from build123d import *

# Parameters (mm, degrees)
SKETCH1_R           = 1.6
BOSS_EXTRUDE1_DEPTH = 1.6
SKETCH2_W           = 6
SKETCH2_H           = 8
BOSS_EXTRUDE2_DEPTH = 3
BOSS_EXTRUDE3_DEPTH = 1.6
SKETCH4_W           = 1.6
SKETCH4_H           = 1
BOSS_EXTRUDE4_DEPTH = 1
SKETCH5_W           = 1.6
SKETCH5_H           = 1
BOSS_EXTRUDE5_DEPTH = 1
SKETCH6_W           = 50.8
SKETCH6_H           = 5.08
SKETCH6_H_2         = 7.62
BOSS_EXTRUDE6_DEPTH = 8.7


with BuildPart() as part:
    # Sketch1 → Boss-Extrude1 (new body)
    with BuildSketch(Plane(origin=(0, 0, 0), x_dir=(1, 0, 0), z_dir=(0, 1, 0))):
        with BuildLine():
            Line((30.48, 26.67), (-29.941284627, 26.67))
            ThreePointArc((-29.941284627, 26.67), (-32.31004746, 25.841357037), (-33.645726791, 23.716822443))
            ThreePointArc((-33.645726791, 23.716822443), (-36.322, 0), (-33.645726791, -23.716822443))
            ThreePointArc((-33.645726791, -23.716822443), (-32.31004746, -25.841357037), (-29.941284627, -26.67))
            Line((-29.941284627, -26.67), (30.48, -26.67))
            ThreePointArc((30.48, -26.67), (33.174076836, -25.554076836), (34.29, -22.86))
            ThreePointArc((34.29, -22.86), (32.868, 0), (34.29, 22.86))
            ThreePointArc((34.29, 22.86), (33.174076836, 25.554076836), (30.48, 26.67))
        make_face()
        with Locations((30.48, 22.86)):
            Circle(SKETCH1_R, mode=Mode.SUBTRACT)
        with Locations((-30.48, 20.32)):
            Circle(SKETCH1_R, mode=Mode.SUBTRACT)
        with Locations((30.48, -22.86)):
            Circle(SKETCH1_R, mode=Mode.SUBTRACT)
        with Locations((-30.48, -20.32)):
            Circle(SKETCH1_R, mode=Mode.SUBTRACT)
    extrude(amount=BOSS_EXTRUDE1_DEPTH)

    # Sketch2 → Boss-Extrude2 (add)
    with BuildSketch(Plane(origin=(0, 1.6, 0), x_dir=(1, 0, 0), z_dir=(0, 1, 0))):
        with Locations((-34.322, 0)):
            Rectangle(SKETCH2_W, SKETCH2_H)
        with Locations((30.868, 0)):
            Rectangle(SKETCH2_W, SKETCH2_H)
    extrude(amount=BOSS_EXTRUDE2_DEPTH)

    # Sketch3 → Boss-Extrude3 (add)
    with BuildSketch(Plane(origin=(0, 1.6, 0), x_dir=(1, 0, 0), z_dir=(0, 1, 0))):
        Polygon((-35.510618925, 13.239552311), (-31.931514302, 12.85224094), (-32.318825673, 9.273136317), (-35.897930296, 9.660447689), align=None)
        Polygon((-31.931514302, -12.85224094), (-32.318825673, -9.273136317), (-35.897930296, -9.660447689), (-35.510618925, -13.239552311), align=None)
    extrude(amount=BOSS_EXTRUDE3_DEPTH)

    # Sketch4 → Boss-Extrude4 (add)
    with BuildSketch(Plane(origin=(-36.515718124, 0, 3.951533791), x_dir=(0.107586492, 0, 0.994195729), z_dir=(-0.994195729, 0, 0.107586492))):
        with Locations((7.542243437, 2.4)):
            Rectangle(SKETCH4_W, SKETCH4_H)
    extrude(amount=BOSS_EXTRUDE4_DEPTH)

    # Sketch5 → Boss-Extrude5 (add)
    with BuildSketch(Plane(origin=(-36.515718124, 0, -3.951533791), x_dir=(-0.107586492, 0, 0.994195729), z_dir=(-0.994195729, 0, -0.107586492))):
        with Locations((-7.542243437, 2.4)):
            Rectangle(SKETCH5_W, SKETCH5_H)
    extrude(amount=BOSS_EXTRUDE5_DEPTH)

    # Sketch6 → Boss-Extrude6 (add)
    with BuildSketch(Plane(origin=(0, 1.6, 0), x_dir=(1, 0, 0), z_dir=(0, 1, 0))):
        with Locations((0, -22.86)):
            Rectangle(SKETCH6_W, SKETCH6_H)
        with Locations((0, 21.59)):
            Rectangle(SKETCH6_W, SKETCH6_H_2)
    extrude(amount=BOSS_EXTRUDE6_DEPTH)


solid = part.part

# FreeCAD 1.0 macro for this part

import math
import FreeCAD as App
import Part
import Sketcher

doc = App.newDocument("Part")
params = doc.addObject("Spreadsheet::Sheet", "Params")
for row, (alias, value) in enumerate([
    ("sketch1_diameter", "3.2 mm"),
    ("sketch1_radius", "3.8 mm"),
    ("sketch1_radius2", "3.81 mm"),
    ("pad1_length", "1.6 mm"),
    ("sketch2_width", "6 mm"),
    ("sketch2_height", "8 mm"),
    ("pad2_length", "3 mm"),
    ("sketch3_length", "3.6 mm"),
    ("pad3_length", "1.6 mm"),
    ("sketch4_height", "1 mm"),
    ("sketch4_width", "1.6 mm"),
    ("pad4_length", "1 mm"),
    ("sketch5_height", "1 mm"),
    ("sketch5_width", "1.6 mm"),
    ("pad5_length", "1 mm"),
    ("sketch6_width", "50.8 mm"),
    ("sketch6_height", "5.08 mm"),
    ("sketch6_height2", "7.62 mm"),
    ("pad6_length", "8.7 mm"),
], start=1):
    params.set(f"A{row}", alias)
    params.set(f"B{row}", "=" + value)
    params.setAlias(f"B{row}", alias)

body = doc.addObject("PartDesign::Body", "Body")

# Sketch on XZ plane
sketch1 = doc.addObject("Sketcher::SketchObject", "Sketch")
body.addObject(sketch1)
sketch1.AttachmentSupport = (doc.XZ_Plane, [""])
sketch1.MapMode = "FlatFace"
sketch1.addGeometry(Part.LineSegment(App.Vector(30.5, -26.7, 0), App.Vector(-29.9, -26.7, 0)), False)
sketch1.addGeometry(Part.ArcOfCircle(Part.Circle(App.Vector(-29.9, -22.9, 0), App.Vector(0, 0, 1), 3.8), math.radians(-167), math.radians(-90)), False)
sketch1.addGeometry(Part.ArcOfCircle(Part.Circle(App.Vector(70.1, 0, 0), App.Vector(0, 0, 1), 106.4), math.radians(167), math.radians(193)), False)
sketch1.addGeometry(Part.ArcOfCircle(Part.Circle(App.Vector(-29.9, 22.9, 0), App.Vector(0, 0, 1), 3.8), math.radians(90), math.radians(167)), False)
sketch1.addGeometry(Part.LineSegment(App.Vector(-29.9, 26.7, 0), App.Vector(30.5, 26.7, 0)), False)
sketch1.addGeometry(Part.ArcOfCircle(Part.Circle(App.Vector(30.5, 22.9, 0), App.Vector(0, 0, 1), 3.8), math.radians(0), math.radians(90)), False)
sketch1.addGeometry(Part.ArcOfCircle(Part.Circle(App.Vector(217.3, 0, 0), App.Vector(0, 0, 1), 184.5), math.radians(172.88), math.radians(187.12)), False)
sketch1.addGeometry(Part.ArcOfCircle(Part.Circle(App.Vector(30.5, -22.9, 0), App.Vector(0, 0, 1), 3.8), math.radians(-90), math.radians(0)), False)
sketch1.addGeometry(Part.Circle(App.Vector(-30.5, 20.3, 0), App.Vector(0, 0, 1), 1.6), False)
sketch1.addGeometry(Part.Circle(App.Vector(30.5, 22.9, 0), App.Vector(0, 0, 1), 1.6), False)
sketch1.addGeometry(Part.Circle(App.Vector(-30.5, -20.3, 0), App.Vector(0, 0, 1), 1.6), False)
sketch1.addGeometry(Part.Circle(App.Vector(30.5, -22.9, 0), App.Vector(0, 0, 1), 1.6), False)
sketch1.addConstraint(Sketcher.Constraint("Tangent", 0, 2, 1, 2))
sketch1.addConstraint(Sketcher.Constraint("Tangent", 1, 1, 2, 2))
sketch1.addConstraint(Sketcher.Constraint("Tangent", 2, 1, 3, 2))
sketch1.addConstraint(Sketcher.Constraint("Tangent", 3, 1, 4, 1))
sketch1.addConstraint(Sketcher.Constraint("Tangent", 4, 2, 5, 2))
sketch1.addConstraint(Sketcher.Constraint("Coincident", 5, 1, 6, 1))
sketch1.addConstraint(Sketcher.Constraint("Coincident", 6, 2, 7, 2))
sketch1.addConstraint(Sketcher.Constraint("Tangent", 7, 1, 0, 1))
sketch1.addConstraint(Sketcher.Constraint("Horizontal", 0))
sketch1.addConstraint(Sketcher.Constraint("Horizontal", 4))
sketch1.addConstraint(Sketcher.Constraint("Coincident", 9, 3, 5, 3))
sketch1.addConstraint(Sketcher.Constraint("Coincident", 11, 3, 7, 3))
sketch1.addConstraint(Sketcher.Constraint("Equal", 1, 3))
sketch1.addConstraint(Sketcher.Constraint("Equal", 5, 7))
sketch1.addConstraint(Sketcher.Constraint("Equal", 8, 9))
sketch1.addConstraint(Sketcher.Constraint("Equal", 9, 10))
sketch1.addConstraint(Sketcher.Constraint("Equal", 10, 11))
sketch1.addConstraint(Sketcher.Constraint("Symmetric", 1, 3, 3, 3, -1))
sketch1.addConstraint(Sketcher.Constraint("Symmetric", 8, 3, 10, 3, -1))
sketch1.addConstraint(Sketcher.Constraint("Symmetric", 5, 1, 6, 2, -1))
sketch1.addConstraint(Sketcher.Constraint("Horizontal", 9, 3, 5, 1))
sketch1.addConstraint(Sketcher.Constraint("Diameter", 8, 3.2))
sketch1.addConstraint(Sketcher.Constraint("Radius", 1, 3.8))
sketch1.addConstraint(Sketcher.Constraint("Radius", 5, 3.81))
sketch1.addConstraint(Sketcher.Constraint("Radius", 2, 106.426))
sketch1.addConstraint(Sketcher.Constraint("Radius", 6, 184.459101))
sketch1.addConstraint(Sketcher.Constraint("DistanceY", 1, 3, -1, 1, 22.87))
sketch1.addConstraint(Sketcher.Constraint("DistanceX", -1, 1, 5, 3, 30.48))
sketch1.addConstraint(Sketcher.Constraint("DistanceX", 8, 3, -1, 1, 30.48))
sketch1.addConstraint(Sketcher.Constraint("DistanceY", -1, 1, 8, 3, 20.32))
sketch1.addConstraint(Sketcher.Constraint("DistanceX", -1, 1, 2, 3, 70.104))
sketch1.setExpression("Constraints[21]", "Params.sketch1_diameter")
sketch1.setExpression("Constraints[22]", "Params.sketch1_radius")
sketch1.setExpression("Constraints[23]", "Params.sketch1_radius2")
pad1 = doc.addObject("PartDesign::Pad", "Pad")
body.addObject(pad1)
pad1.Profile = sketch1
pad1.setExpression("Length", "Params.pad1_length")
pad1.Reversed = True

# Sketch on XZ plane
sketch2 = doc.addObject("Sketcher::SketchObject", "Sketch001")
body.addObject(sketch2)
sketch2.AttachmentSupport = (doc.XZ_Plane, [""])
sketch2.MapMode = "FlatFace"
sketch2.AttachmentOffset = App.Placement(App.Vector(0, 0, -1.6), App.Rotation())
sketch2.addGeometry(Part.LineSegment(App.Vector(-37, -4, 0), App.Vector(-37, 4, 0)), False)
sketch2.addGeometry(Part.LineSegment(App.Vector(-37, 4, 0), App.Vector(-31, 4, 0)), False)
sketch2.addGeometry(Part.LineSegment(App.Vector(-31, 4, 0), App.Vector(-31, -4, 0)), False)
sketch2.addGeometry(Part.LineSegment(App.Vector(-31, -4, 0), App.Vector(-37, -4, 0)), False)
sketch2.addGeometry(Part.LineSegment(App.Vector(28, -4, 0), App.Vector(28, 4, 0)), False)
sketch2.addGeometry(Part.LineSegment(App.Vector(28, 4, 0), App.Vector(34, 4, 0)), False)
sketch2.addGeometry(Part.LineSegment(App.Vector(34, 4, 0), App.Vector(34, -4, 0)), False)
sketch2.addGeometry(Part.LineSegment(App.Vector(34, -4, 0), App.Vector(28, -4, 0)), False)
sketch2.addConstraint(Sketcher.Constraint("Coincident", 0, 2, 1, 1))
sketch2.addConstraint(Sketcher.Constraint("Coincident", 1, 2, 2, 1))
sketch2.addConstraint(Sketcher.Constraint("Coincident", 2, 2, 3, 1))
sketch2.addConstraint(Sketcher.Constraint("Coincident", 3, 2, 0, 1))
sketch2.addConstraint(Sketcher.Constraint("Coincident", 4, 2, 5, 1))
sketch2.addConstraint(Sketcher.Constraint("Coincident", 5, 2, 6, 1))
sketch2.addConstraint(Sketcher.Constraint("Coincident", 6, 2, 7, 1))
sketch2.addConstraint(Sketcher.Constraint("Coincident", 7, 2, 4, 1))
sketch2.addConstraint(Sketcher.Constraint("Vertical", 0))
sketch2.addConstraint(Sketcher.Constraint("Horizontal", 1))
sketch2.addConstraint(Sketcher.Constraint("Vertical", 2))
sketch2.addConstraint(Sketcher.Constraint("Horizontal", 3))
sketch2.addConstraint(Sketcher.Constraint("Vertical", 4))
sketch2.addConstraint(Sketcher.Constraint("Horizontal", 5))
sketch2.addConstraint(Sketcher.Constraint("Vertical", 6))
sketch2.addConstraint(Sketcher.Constraint("Horizontal", 7))
sketch2.addConstraint(Sketcher.Constraint("Horizontal", 1, 2, 4, 2))
sketch2.addConstraint(Sketcher.Constraint("Horizontal", 3, 2, 6, 2))
sketch2.addConstraint(Sketcher.Constraint("Equal", 3, 5))
sketch2.addConstraint(Sketcher.Constraint("DistanceX", 1, 1, 1, 2, 6.0))
sketch2.addConstraint(Sketcher.Constraint("DistanceY", 0, 1, 0, 2, 8.0))
sketch2.addConstraint(Sketcher.Constraint("DistanceY", -1, 1, 0, 2, 4.0))
sketch2.addConstraint(Sketcher.Constraint("DistanceX", 1, 2, 4, 2, 59.19))
sketch2.addConstraint(Sketcher.Constraint("DistanceX", 0, 2, -1, 1, 37.322))
sketch2.setExpression("Constraints[19]", "Params.sketch2_width")
sketch2.setExpression("Constraints[20]", "Params.sketch2_height")
pad2 = doc.addObject("PartDesign::Pad", "Pad001")
body.addObject(pad2)
pad2.Profile = sketch2
pad2.setExpression("Length", "Params.pad2_length")
pad2.Reversed = True

# Sketch on XZ plane
sketch3 = doc.addObject("Sketcher::SketchObject", "Sketch002")
body.addObject(sketch3)
sketch3.AttachmentSupport = (doc.XZ_Plane, [""])
sketch3.MapMode = "FlatFace"
sketch3.AttachmentOffset = App.Placement(App.Vector(0, 0, -1.6), App.Rotation())
sketch3.addGeometry(Part.LineSegment(App.Vector(-31.9, -12.9, 0), App.Vector(-35.5, -13.2, 0)), False)
sketch3.addGeometry(Part.LineSegment(App.Vector(-35.5, -13.2, 0), App.Vector(-35.9, -9.7, 0)), False)
sketch3.addGeometry(Part.LineSegment(App.Vector(-35.9, -9.7, 0), App.Vector(-32.3, -9.3, 0)), False)
sketch3.addGeometry(Part.LineSegment(App.Vector(-32.3, -9.3, 0), App.Vector(-31.9, -12.9, 0)), False)
sketch3.addGeometry(Part.LineSegment(App.Vector(-31.9, 12.9, 0), App.Vector(-32.3, 9.3, 0)), False)
sketch3.addGeometry(Part.LineSegment(App.Vector(-32.3, 9.3, 0), App.Vector(-35.9, 9.7, 0)), False)
sketch3.addGeometry(Part.LineSegment(App.Vector(-35.9, 9.7, 0), App.Vector(-35.5, 13.2, 0)), False)
sketch3.addGeometry(Part.LineSegment(App.Vector(-35.5, 13.2, 0), App.Vector(-31.9, 12.9, 0)), False)
sketch3.addConstraint(Sketcher.Constraint("Coincident", 0, 2, 1, 1))
sketch3.addConstraint(Sketcher.Constraint("Coincident", 1, 2, 2, 1))
sketch3.addConstraint(Sketcher.Constraint("Coincident", 2, 2, 3, 1))
sketch3.addConstraint(Sketcher.Constraint("Coincident", 3, 2, 0, 1))
sketch3.addConstraint(Sketcher.Constraint("Coincident", 4, 2, 5, 1))
sketch3.addConstraint(Sketcher.Constraint("Coincident", 5, 2, 6, 1))
sketch3.addConstraint(Sketcher.Constraint("Coincident", 6, 2, 7, 1))
sketch3.addConstraint(Sketcher.Constraint("Coincident", 7, 2, 4, 1))
sketch3.addConstraint(Sketcher.Constraint("Symmetric", 2, 2, 4, 2, -1))
sketch3.addConstraint(Sketcher.Constraint("Symmetric", 1, 2, 5, 2, -1))
sketch3.addConstraint(Sketcher.Constraint("Symmetric", 0, 2, 6, 2, -1))
sketch3.addConstraint(Sketcher.Constraint("Symmetric", 3, 2, 7, 2, -1))
sketch3.addConstraint(Sketcher.Constraint("Perpendicular", 0, 1))
sketch3.addConstraint(Sketcher.Constraint("Perpendicular", 1, 2))
sketch3.addConstraint(Sketcher.Constraint("Perpendicular", 2, 3))
sketch3.addConstraint(Sketcher.Constraint("Equal", 0, 1))
sketch3.addConstraint(Sketcher.Constraint("Distance", 0, 3.6))
sketch3.addConstraint(Sketcher.Constraint("DistanceY", 0, 2, 5, 2, 22.9))
sketch3.addConstraint(Sketcher.Constraint("DistanceX", 0, 2, -1, 1, 35.510619))
sketch3.addConstraint(Sketcher.Constraint("DistanceX", 1, 2, -1, 1, 35.89793))
sketch3.setExpression("Constraints[16]", "Params.sketch3_length")
pad3 = doc.addObject("PartDesign::Pad", "Pad002")
body.addObject(pad3)
pad3.Profile = sketch3
pad3.setExpression("Length", "Params.pad3_length")
pad3.Reversed = True

# Sketch on an angled plane
sketch4 = doc.addObject("Sketcher::SketchObject", "Sketch003")
body.addObject(sketch4)
sketch4.Placement = App.Placement(App.Vector(-36.515718, 0, 3.951534), App.Rotation(App.Vector(0.107586492, 0, 0.994195729), App.Vector(0, 1.000000001, 0), App.Vector(-0.994195729, 0, 0.107586492), "ZXY"))
sketch4.addGeometry(Part.LineSegment(App.Vector(6.7, 2.9, 0), App.Vector(6.7, 1.9, 0)), False)
sketch4.addGeometry(Part.LineSegment(App.Vector(6.7, 1.9, 0), App.Vector(8.3, 1.9, 0)), False)
sketch4.addGeometry(Part.LineSegment(App.Vector(8.3, 1.9, 0), App.Vector(8.3, 2.9, 0)), False)
sketch4.addGeometry(Part.LineSegment(App.Vector(8.3, 2.9, 0), App.Vector(6.7, 2.9, 0)), False)
sketch4.addConstraint(Sketcher.Constraint("Coincident", 0, 2, 1, 1))
sketch4.addConstraint(Sketcher.Constraint("Coincident", 1, 2, 2, 1))
sketch4.addConstraint(Sketcher.Constraint("Coincident", 2, 2, 3, 1))
sketch4.addConstraint(Sketcher.Constraint("Coincident", 3, 2, 0, 1))
sketch4.addConstraint(Sketcher.Constraint("Vertical", 0))
sketch4.addConstraint(Sketcher.Constraint("Horizontal", 1))
sketch4.addConstraint(Sketcher.Constraint("Vertical", 2))
sketch4.addConstraint(Sketcher.Constraint("Horizontal", 3))
sketch4.addConstraint(Sketcher.Constraint("DistanceY", 0, 2, 0, 1, 1.0))
sketch4.addConstraint(Sketcher.Constraint("DistanceX", 1, 1, 1, 2, 1.6))
sketch4.addConstraint(Sketcher.Constraint("DistanceY", -1, 1, 0, 2, 1.9))
sketch4.addConstraint(Sketcher.Constraint("DistanceX", -1, 1, 0, 2, 6.742243))
sketch4.setExpression("Constraints[8]", "Params.sketch4_height")
sketch4.setExpression("Constraints[9]", "Params.sketch4_width")
pad4 = doc.addObject("PartDesign::Pad", "Pad003")
body.addObject(pad4)
pad4.Profile = sketch4
pad4.setExpression("Length", "Params.pad4_length")

# Sketch on an angled plane
sketch5 = doc.addObject("Sketcher::SketchObject", "Sketch004")
body.addObject(sketch5)
sketch5.Placement = App.Placement(App.Vector(-36.515718, 0, -3.951534), App.Rotation(App.Vector(-0.107586492, 0, 0.994195729), App.Vector(0, 1.000000001, 0), App.Vector(-0.994195729, 0, -0.107586492), "ZXY"))
sketch5.addGeometry(Part.LineSegment(App.Vector(-8.3, 2.9, 0), App.Vector(-8.3, 1.9, 0)), False)
sketch5.addGeometry(Part.LineSegment(App.Vector(-8.3, 1.9, 0), App.Vector(-6.7, 1.9, 0)), False)
sketch5.addGeometry(Part.LineSegment(App.Vector(-6.7, 1.9, 0), App.Vector(-6.7, 2.9, 0)), False)
sketch5.addGeometry(Part.LineSegment(App.Vector(-6.7, 2.9, 0), App.Vector(-8.3, 2.9, 0)), False)
sketch5.addConstraint(Sketcher.Constraint("Coincident", 0, 2, 1, 1))
sketch5.addConstraint(Sketcher.Constraint("Coincident", 1, 2, 2, 1))
sketch5.addConstraint(Sketcher.Constraint("Coincident", 2, 2, 3, 1))
sketch5.addConstraint(Sketcher.Constraint("Coincident", 3, 2, 0, 1))
sketch5.addConstraint(Sketcher.Constraint("Vertical", 0))
sketch5.addConstraint(Sketcher.Constraint("Horizontal", 1))
sketch5.addConstraint(Sketcher.Constraint("Vertical", 2))
sketch5.addConstraint(Sketcher.Constraint("Horizontal", 3))
sketch5.addConstraint(Sketcher.Constraint("DistanceY", 0, 2, 0, 1, 1.0))
sketch5.addConstraint(Sketcher.Constraint("DistanceX", 1, 1, 1, 2, 1.6))
sketch5.addConstraint(Sketcher.Constraint("DistanceY", -1, 1, 0, 2, 1.9))
sketch5.addConstraint(Sketcher.Constraint("DistanceX", 0, 2, -1, 1, 8.342243))
sketch5.setExpression("Constraints[8]", "Params.sketch5_height")
sketch5.setExpression("Constraints[9]", "Params.sketch5_width")
pad5 = doc.addObject("PartDesign::Pad", "Pad004")
body.addObject(pad5)
pad5.Profile = sketch5
pad5.setExpression("Length", "Params.pad5_length")

# Sketch on XZ plane
sketch6 = doc.addObject("Sketcher::SketchObject", "Sketch005")
body.addObject(sketch6)
sketch6.AttachmentSupport = (doc.XZ_Plane, [""])
sketch6.MapMode = "FlatFace"
sketch6.AttachmentOffset = App.Placement(App.Vector(0, 0, -1.6), App.Rotation())
sketch6.addGeometry(Part.LineSegment(App.Vector(-25, 20, 0), App.Vector(-25, 25, 0)), False)
sketch6.addGeometry(Part.LineSegment(App.Vector(-25, 25, 0), App.Vector(25, 25, 0)), False)
sketch6.addGeometry(Part.LineSegment(App.Vector(25, 25, 0), App.Vector(25, 20, 0)), False)
sketch6.addGeometry(Part.LineSegment(App.Vector(25, 20, 0), App.Vector(-25, 20, 0)), False)
sketch6.addGeometry(Part.LineSegment(App.Vector(-25, -25, 0), App.Vector(-25, -18, 0)), False)
sketch6.addGeometry(Part.LineSegment(App.Vector(-25, -18, 0), App.Vector(25, -18, 0)), False)
sketch6.addGeometry(Part.LineSegment(App.Vector(25, -18, 0), App.Vector(25, -25, 0)), False)
sketch6.addGeometry(Part.LineSegment(App.Vector(25, -25, 0), App.Vector(-25, -25, 0)), False)
sketch6.addConstraint(Sketcher.Constraint("Coincident", 0, 2, 1, 1))
sketch6.addConstraint(Sketcher.Constraint("Coincident", 1, 2, 2, 1))
sketch6.addConstraint(Sketcher.Constraint("Coincident", 2, 2, 3, 1))
sketch6.addConstraint(Sketcher.Constraint("Coincident", 3, 2, 0, 1))
sketch6.addConstraint(Sketcher.Constraint("Coincident", 4, 2, 5, 1))
sketch6.addConstraint(Sketcher.Constraint("Coincident", 5, 2, 6, 1))
sketch6.addConstraint(Sketcher.Constraint("Coincident", 6, 2, 7, 1))
sketch6.addConstraint(Sketcher.Constraint("Coincident", 7, 2, 4, 1))
sketch6.addConstraint(Sketcher.Constraint("Vertical", 0))
sketch6.addConstraint(Sketcher.Constraint("Horizontal", 1))
sketch6.addConstraint(Sketcher.Constraint("Vertical", 2))
sketch6.addConstraint(Sketcher.Constraint("Horizontal", 3))
sketch6.addConstraint(Sketcher.Constraint("Vertical", 4))
sketch6.addConstraint(Sketcher.Constraint("Horizontal", 5))
sketch6.addConstraint(Sketcher.Constraint("Vertical", 6))
sketch6.addConstraint(Sketcher.Constraint("Horizontal", 7))
sketch6.addConstraint(Sketcher.Constraint("Symmetric", 0, 2, 6, 2, -1, 1))
sketch6.addConstraint(Sketcher.Constraint("Vertical", 3, 2, 4, 2))
sketch6.addConstraint(Sketcher.Constraint("Vertical", 2, 2, 5, 2))
sketch6.addConstraint(Sketcher.Constraint("DistanceX", 1, 1, 1, 2, 50.8))
sketch6.addConstraint(Sketcher.Constraint("DistanceY", 0, 1, 0, 2, 5.08))
sketch6.addConstraint(Sketcher.Constraint("DistanceY", 4, 1, 4, 2, 7.62))
sketch6.addConstraint(Sketcher.Constraint("DistanceY", -1, 1, 0, 2, 25.4))
sketch6.setExpression("Constraints[19]", "Params.sketch6_width")
sketch6.setExpression("Constraints[20]", "Params.sketch6_height")
sketch6.setExpression("Constraints[21]", "Params.sketch6_height2")
pad6 = doc.addObject("PartDesign::Pad", "Pad005")
body.addObject(pad6)
pad6.Profile = sketch6
pad6.setExpression("Length", "Params.pad6_length")
pad6.Reversed = True

doc.recompute()
